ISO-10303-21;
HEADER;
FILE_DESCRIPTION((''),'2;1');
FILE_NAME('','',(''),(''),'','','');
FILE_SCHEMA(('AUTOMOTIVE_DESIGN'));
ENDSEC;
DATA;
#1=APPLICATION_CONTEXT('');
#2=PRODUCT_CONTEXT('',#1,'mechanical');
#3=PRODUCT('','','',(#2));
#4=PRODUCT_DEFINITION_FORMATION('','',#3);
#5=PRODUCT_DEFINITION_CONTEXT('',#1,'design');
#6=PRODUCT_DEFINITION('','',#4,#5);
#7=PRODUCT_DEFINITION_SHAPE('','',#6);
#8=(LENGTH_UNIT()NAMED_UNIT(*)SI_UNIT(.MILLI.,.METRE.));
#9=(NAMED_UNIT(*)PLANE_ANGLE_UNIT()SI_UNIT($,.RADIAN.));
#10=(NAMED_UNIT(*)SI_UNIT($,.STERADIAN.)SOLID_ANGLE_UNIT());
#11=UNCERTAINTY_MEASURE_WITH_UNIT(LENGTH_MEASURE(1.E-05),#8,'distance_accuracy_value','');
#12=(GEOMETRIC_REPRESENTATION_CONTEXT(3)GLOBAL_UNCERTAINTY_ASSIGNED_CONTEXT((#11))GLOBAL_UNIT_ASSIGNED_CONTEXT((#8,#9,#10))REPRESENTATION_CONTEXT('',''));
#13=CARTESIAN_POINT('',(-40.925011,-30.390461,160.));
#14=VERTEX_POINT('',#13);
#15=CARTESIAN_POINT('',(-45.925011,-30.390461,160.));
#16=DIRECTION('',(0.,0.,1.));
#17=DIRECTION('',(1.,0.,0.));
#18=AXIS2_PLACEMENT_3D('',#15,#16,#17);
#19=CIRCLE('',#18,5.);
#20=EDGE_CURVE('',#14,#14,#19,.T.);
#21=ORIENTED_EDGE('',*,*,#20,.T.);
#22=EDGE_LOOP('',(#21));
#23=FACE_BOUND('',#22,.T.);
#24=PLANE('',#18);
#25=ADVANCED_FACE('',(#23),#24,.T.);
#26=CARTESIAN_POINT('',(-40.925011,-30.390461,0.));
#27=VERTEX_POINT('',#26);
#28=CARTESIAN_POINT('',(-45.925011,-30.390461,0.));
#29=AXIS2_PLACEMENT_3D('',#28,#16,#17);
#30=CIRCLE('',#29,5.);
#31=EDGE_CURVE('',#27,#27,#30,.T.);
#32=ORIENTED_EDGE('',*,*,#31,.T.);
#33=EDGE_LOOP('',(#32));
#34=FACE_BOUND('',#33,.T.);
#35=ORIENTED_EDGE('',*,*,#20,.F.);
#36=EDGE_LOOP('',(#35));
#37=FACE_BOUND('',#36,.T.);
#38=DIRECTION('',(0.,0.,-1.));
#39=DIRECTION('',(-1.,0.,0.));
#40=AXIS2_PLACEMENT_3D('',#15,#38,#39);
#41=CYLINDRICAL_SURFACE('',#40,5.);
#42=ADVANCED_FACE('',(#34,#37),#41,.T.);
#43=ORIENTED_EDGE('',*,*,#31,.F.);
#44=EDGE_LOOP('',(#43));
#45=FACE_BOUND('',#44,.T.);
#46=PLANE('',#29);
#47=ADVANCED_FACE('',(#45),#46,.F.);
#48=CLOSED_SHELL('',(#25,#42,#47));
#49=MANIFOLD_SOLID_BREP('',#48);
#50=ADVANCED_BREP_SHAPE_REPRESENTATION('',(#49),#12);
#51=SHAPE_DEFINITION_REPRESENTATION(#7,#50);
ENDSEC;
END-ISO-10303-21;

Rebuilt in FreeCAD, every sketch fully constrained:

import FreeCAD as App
import Part
import Sketcher

V = App.Vector
Q = App.Units.Quantity

doc = App.newDocument("Part")
body = doc.addObject("PartDesign::Body", "Body")

sketch1 = doc.addObject("Sketcher::SketchObject", "Sketch")
body.addObject(sketch1)
sketch1.AttachmentSupport = (doc.XY_Plane, [""])
sketch1.MapMode = "FlatFace"
sketch1.addGeometry(Part.Circle(V(-46, -30, 0), V(0, 0, 1), 5), False)
sketch1.addConstraint([
    Sketcher.Constraint("Diameter", 0, Q("10 mm")),
    Sketcher.Constraint("DistanceX", 0, 3, -1, 1, Q("45.925011 mm")),
    Sketcher.Constraint("DistanceY", 0, 3, -1, 1, Q("30.390461 mm")),
])
pad1 = doc.addObject("PartDesign::Pad", "Pad")
body.addObject(pad1)
pad1.Profile = sketch1
pad1.Length = 160

doc.recompute()
